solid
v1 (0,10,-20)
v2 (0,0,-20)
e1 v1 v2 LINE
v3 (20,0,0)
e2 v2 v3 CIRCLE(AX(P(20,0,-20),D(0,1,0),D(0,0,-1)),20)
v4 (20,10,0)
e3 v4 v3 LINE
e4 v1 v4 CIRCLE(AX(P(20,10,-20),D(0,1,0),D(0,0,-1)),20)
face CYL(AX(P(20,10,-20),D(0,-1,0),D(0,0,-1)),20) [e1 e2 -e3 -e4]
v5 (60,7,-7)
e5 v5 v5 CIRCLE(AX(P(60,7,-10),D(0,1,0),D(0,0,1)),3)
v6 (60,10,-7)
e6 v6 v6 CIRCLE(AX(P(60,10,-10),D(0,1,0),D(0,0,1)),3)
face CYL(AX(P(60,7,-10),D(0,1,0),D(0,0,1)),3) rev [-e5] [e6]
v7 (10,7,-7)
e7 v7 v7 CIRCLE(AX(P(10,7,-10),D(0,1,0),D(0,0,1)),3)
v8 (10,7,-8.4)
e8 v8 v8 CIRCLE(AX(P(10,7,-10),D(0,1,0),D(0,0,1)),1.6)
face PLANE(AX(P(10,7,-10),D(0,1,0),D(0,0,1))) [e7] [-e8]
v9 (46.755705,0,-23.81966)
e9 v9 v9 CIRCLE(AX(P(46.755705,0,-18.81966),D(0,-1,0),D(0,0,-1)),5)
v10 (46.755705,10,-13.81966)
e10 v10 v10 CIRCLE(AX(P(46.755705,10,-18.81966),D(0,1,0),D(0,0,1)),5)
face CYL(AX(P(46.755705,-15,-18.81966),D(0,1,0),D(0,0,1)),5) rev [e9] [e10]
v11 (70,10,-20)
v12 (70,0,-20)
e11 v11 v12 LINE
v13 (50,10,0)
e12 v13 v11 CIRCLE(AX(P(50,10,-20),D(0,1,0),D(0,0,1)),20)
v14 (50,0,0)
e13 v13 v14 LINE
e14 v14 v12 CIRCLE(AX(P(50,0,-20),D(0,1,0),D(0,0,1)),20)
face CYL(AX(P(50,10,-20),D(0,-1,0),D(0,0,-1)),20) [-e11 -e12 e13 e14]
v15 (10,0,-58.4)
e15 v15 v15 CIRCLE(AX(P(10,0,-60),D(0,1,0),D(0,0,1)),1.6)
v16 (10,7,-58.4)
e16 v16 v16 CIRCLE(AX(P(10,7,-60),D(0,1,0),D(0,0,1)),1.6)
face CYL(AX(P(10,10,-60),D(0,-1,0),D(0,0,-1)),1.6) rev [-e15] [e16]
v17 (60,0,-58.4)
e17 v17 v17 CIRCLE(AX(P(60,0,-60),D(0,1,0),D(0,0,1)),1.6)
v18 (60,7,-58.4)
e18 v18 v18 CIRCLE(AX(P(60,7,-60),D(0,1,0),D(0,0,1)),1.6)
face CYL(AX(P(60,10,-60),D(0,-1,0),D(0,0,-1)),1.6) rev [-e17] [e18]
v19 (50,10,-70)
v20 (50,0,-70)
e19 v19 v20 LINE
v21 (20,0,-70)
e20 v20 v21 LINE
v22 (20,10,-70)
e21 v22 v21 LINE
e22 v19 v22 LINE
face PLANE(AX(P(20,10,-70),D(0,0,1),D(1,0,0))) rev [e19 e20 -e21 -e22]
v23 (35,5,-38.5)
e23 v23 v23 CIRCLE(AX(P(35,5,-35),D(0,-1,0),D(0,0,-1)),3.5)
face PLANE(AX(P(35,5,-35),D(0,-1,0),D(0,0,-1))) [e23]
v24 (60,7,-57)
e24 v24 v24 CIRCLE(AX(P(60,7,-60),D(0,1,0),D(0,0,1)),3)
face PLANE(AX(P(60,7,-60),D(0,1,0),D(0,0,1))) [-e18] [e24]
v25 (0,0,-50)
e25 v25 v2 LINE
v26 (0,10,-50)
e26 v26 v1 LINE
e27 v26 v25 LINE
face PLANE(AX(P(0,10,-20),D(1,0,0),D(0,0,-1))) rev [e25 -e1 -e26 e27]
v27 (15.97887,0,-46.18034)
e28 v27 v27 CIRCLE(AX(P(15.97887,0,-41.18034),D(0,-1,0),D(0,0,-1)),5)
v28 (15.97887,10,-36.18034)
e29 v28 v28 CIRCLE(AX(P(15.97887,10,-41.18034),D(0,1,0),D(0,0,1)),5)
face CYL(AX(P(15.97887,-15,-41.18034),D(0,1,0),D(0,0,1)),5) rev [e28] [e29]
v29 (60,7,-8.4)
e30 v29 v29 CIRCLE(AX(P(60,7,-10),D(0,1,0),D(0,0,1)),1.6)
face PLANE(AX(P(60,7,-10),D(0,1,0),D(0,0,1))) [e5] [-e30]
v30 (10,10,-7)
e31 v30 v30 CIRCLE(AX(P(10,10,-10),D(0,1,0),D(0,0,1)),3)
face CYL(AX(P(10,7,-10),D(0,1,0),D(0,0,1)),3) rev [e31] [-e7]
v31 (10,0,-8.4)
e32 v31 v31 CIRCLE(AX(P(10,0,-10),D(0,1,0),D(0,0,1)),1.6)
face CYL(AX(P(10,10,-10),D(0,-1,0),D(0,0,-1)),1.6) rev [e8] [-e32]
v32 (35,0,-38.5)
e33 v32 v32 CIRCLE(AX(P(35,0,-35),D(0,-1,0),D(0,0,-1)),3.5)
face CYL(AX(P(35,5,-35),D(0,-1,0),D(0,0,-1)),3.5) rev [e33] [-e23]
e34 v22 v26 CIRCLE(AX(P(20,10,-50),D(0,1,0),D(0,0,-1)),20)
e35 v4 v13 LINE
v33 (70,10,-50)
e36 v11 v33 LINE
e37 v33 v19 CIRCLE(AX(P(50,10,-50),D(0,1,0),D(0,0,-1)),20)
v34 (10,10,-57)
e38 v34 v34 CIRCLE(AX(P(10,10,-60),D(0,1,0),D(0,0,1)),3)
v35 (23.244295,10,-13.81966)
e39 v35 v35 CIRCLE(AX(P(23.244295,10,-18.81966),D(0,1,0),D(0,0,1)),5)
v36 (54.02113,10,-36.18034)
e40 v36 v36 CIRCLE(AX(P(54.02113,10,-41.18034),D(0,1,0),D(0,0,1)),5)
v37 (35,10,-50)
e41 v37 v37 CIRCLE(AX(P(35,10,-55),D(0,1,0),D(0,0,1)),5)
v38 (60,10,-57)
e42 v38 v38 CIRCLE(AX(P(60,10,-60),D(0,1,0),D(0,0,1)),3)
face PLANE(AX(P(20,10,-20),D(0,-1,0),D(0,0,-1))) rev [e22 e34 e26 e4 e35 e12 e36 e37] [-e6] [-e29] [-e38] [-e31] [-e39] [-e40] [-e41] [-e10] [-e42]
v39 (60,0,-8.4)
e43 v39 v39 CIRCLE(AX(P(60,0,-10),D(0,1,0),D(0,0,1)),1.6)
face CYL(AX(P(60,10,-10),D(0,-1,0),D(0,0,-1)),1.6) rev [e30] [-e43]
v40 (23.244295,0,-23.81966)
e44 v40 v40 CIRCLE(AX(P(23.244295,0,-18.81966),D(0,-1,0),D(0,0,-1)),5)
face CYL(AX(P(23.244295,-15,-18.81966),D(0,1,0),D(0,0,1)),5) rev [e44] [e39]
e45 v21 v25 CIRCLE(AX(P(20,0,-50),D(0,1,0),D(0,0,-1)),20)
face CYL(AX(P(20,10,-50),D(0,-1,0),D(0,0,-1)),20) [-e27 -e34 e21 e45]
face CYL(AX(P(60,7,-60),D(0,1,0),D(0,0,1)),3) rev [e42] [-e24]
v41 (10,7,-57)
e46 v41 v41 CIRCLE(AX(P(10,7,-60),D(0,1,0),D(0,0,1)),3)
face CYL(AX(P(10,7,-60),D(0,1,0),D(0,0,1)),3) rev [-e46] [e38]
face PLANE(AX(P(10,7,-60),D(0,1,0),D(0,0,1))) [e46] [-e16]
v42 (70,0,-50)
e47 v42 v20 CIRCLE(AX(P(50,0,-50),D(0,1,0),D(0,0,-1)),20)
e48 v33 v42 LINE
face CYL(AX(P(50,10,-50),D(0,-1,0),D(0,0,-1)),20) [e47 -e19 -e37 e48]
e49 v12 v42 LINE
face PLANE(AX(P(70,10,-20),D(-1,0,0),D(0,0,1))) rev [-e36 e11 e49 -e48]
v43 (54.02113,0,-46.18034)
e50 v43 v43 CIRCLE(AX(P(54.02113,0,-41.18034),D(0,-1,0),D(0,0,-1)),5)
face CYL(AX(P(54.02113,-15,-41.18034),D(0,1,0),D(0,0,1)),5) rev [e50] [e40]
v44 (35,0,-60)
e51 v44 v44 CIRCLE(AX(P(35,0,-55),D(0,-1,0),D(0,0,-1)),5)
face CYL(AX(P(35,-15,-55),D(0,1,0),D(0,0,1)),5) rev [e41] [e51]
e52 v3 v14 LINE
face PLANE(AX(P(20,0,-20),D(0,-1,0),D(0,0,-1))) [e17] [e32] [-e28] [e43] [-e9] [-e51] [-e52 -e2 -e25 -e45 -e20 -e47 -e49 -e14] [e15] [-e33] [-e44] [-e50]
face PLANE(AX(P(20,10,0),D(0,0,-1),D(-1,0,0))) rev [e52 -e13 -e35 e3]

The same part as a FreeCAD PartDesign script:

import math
import FreeCAD as App
import Part
import Sketcher
from FreeCAD import Vector

doc = App.newDocument("Part")
body = doc.addObject("PartDesign::Body", "Body")

# Sketch on XZ plane
sketch1 = doc.addObject("Sketcher::SketchObject", "Sketch")
body.addObject(sketch1)
sketch1.AttachmentSupport = (doc.XZ_Plane, [""])
sketch1.MapMode = "FlatFace"
sketch1.addGeometry([
    Part.LineSegment(Vector(20, 0, 0), Vector(50, 0, 0)),  # 0
    Part.ArcOfCircle(Part.Circle(Vector(50, -20, 0), Vector(0, 0, 1), 20), math.radians(0), math.radians(90)),  # 1
    Part.LineSegment(Vector(70, -20, 0), Vector(70, -50, 0)),  # 2
    Part.ArcOfCircle(Part.Circle(Vector(50, -50, 0), Vector(0, 0, 1), 20), math.radians(-90), math.radians(0)),  # 3
    Part.LineSegment(Vector(50, -70, 0), Vector(20, -70, 0)),  # 4
    Part.ArcOfCircle(Part.Circle(Vector(20, -50, 0), Vector(0, 0, 1), 20), math.radians(180), math.radians(270)),  # 5
    Part.LineSegment(Vector(0, -50, 0), Vector(0, -20, 0)),  # 6
    Part.ArcOfCircle(Part.Circle(Vector(20, -20, 0), Vector(0, 0, 1), 20), math.radians(90), math.radians(180)),  # 7
    Part.Circle(Vector(10, -10, 0), Vector(0, 0, 1), 1.6),  # 8
    Part.Circle(Vector(60, -10, 0), Vector(0, 0, 1), 1.6),  # 9
    Part.Circle(Vector(10, -60, 0), Vector(0, 0, 1), 1.6),  # 10
    Part.Circle(Vector(60, -60, 0), Vector(0, 0, 1), 1.6),  # 11
], False)
sketch1.addConstraint([
    Sketcher.Constraint("Tangent", 0, 2, 1, 2),
    Sketcher.Constraint("Tangent", 1, 1, 2, 1),
    Sketcher.Constraint("Tangent", 2, 2, 3, 2),
    Sketcher.Constraint("Tangent", 3, 1, 4, 1),
    Sketcher.Constraint("Tangent", 4, 2, 5, 2),
    Sketcher.Constraint("Tangent", 5, 1, 6, 1),
    Sketcher.Constraint("Tangent", 6, 2, 7, 2),
    Sketcher.Constraint("Tangent", 7, 1, 0, 1),
    Sketcher.Constraint("Horizontal", 0),
    Sketcher.Constraint("Vertical", 2),
    Sketcher.Constraint("Horizontal", 4),
    Sketcher.Constraint("Vertical", 6),
    Sketcher.Constraint("Equal", 1, 3),
    Sketcher.Constraint("Equal", 3, 5),
    Sketcher.Constraint("Equal", 5, 7),
    Sketcher.Constraint("Equal", 8, 9),
    Sketcher.Constraint("Equal", 9, 10),
    Sketcher.Constraint("Equal", 10, 11),
    Sketcher.Constraint("PointOnObject", 0, 2, -1),
    Sketcher.Constraint("PointOnObject", 5, 1, -2),
    Sketcher.Constraint("Horizontal", 8, 3, 9, 3),
    Sketcher.Constraint("Horizontal", 10, 3, 11, 3),
    Sketcher.Constraint("Vertical", 8, 3, 10, 3),
    Sketcher.Constraint("Vertical", 9, 3, 11, 3),
    Sketcher.Constraint("Equal", 4, 2),
    Sketcher.Constraint("Radius", 1, 20.0),
    Sketcher.Constraint("Diameter", 8, 3.2),
    Sketcher.Constraint("DistanceX", 0, 1, 0, 2, 30.0),
    Sketcher.Constraint("DistanceX", -1, 1, 8, 3, 10.0),
    Sketcher.Constraint("DistanceY", 8, 3, -1, 1, 10.0),
    Sketcher.Constraint("DistanceX", -1, 1, 9, 3, 60.0),
    Sketcher.Constraint("DistanceY", 10, 3, -1, 1, 60.0),
])
pad1 = doc.addObject("PartDesign::Pad", "Pad")
body.addObject(pad1)
pad1.Profile = sketch1
pad1.Length = 10
pad1.Reversed = True

# Sketch on XZ plane
sketch2 = doc.addObject("Sketcher::SketchObject", "Sketch001")
body.addObject(sketch2)
sketch2.AttachmentSupport = (doc.XZ_Plane, [""])
sketch2.MapMode = "FlatFace"
sketch2.AttachmentOffset = App.Placement(Vector(0, 0, -10), App.Rotation())
sketch2.addGeometry([
    Part.Circle(Vector(35, -55, 0), Vector(0, 0, 1), 5),  # 0
    Part.Circle(Vector(54.02113, -41.18034, 0), Vector(0, 0, 1), 5),  # 1
    Part.Circle(Vector(46.755705, -18.81966, 0), Vector(0, 0, 1), 5),  # 2
    Part.Circle(Vector(23.244295, -18.81966, 0), Vector(0, 0, 1), 5),  # 3
    Part.Circle(Vector(15.97887, -41.18034, 0), Vector(0, 0, 1), 5),  # 4
], False)
sketch2.addConstraint([
    Sketcher.Constraint("Equal", 0, 1),
    Sketcher.Constraint("Equal", 1, 2),
    Sketcher.Constraint("Equal", 2, 3),
    Sketcher.Constraint("Equal", 3, 4),
    Sketcher.Constraint("Horizontal", 2, 3, 3, 3),
    Sketcher.Constraint("Horizontal", 1, 3, 4, 3),
    Sketcher.Constraint("Diameter", 0, 10.0),
    Sketcher.Constraint("DistanceX", -1, 1, 0, 3, 35.0),
    Sketcher.Constraint("DistanceY", 0, 3, -1, 1, 55.0),
    Sketcher.Constraint("DistanceX", -1, 1, 1, 3, 54.02113),
    Sketcher.Constraint("DistanceY", 1, 3, -1, 1, 41.18034),
    Sketcher.Constraint("DistanceY", 2, 3, -1, 1, 18.81966),
    Sketcher.Constraint("DistanceX", -1, 1, 4, 3, 15.97887),
    Sketcher.Constraint("DistanceX", 3, 3, 2, 3, 23.51141),
    Sketcher.Constraint("DistanceX", -1, 1, 2, 3, 46.755705),
])
pocket1 = doc.addObject("PartDesign::Pocket", "Pocket")
body.addObject(pocket1)
pocket1.Profile = sketch2
pocket1.Length = 25
pocket1.Reversed = True

# Sketch on XZ plane
sketch3 = doc.addObject("Sketcher::SketchObject", "Sketch002")
body.addObject(sketch3)
sketch3.AttachmentSupport = (doc.XZ_Plane, [""])
sketch3.MapMode = "FlatFace"
sketch3.AttachmentOffset = App.Placement(Vector(0, 0, -10), App.Rotation())
sketch3.addGeometry([
    Part.Circle(Vector(10, -60, 0), Vector(0, 0, 1), 3),
    Part.Circle(Vector(60, -60, 0), Vector(0, 0, 1), 3),
    Part.Circle(Vector(60, -10, 0), Vector(0, 0, 1), 3),
    Part.Circle(Vector(10, -10, 0), Vector(0, 0, 1), 3),
], False)
sketch3.addConstraint([
    Sketcher.Constraint("Equal", 0, 1),
    Sketcher.Constraint("Equal", 1, 2),
    Sketcher.Constraint("Equal", 2, 3),
    Sketcher.Constraint("Horizontal", 0, 3, 1, 3),
    Sketcher.Constraint("Horizontal", 2, 3, 3, 3),
    Sketcher.Constraint("Vertical", 1, 3, 2, 3),
    Sketcher.Constraint("Vertical", 0, 3, 3, 3),
    Sketcher.Constraint("Diameter", 0, 6.0),
    Sketcher.Constraint("DistanceX", -1, 1, 0, 3, 10.0),
    Sketcher.Constraint("DistanceY", 0, 3, -1, 1, 60.0),
    Sketcher.Constraint("DistanceX", -1, 1, 1, 3, 60.0),
    Sketcher.Constraint("DistanceY", 2, 3, -1, 1, 10.0),
])
pocket2 = doc.addObject("PartDesign::Pocket", "Pocket001")
body.addObject(pocket2)
pocket2.Profile = sketch3
pocket2.Length = 3
pocket2.Reversed = True

# Sketch on XZ plane
sketch4 = doc.addObject("Sketcher::SketchObject", "Sketch003")
body.addObject(sketch4)
sketch4.AttachmentSupport = (doc.XZ_Plane, [""])
sketch4.MapMode = "FlatFace"
sketch4.AttachmentOffset = App.Placement(Vector(0, 0, -5), App.Rotation())
sketch4.addGeometry([
    Part.Circle(Vector(15.97887, -41.18034, 0), Vector(0, 0, 1), 5),  # 0
    Part.Circle(Vector(35, -55, 0), Vector(0, 0, 1), 5),  # 1
    Part.Circle(Vector(54.02113, -41.18034, 0), Vector(0, 0, 1), 5),  # 2
    Part.Circle(Vector(46.755705, -18.81966, 0), Vector(0, 0, 1), 5),  # 3
    Part.Circle(Vector(23.244295, -18.81966, 0), Vector(0, 0, 1), 5),  # 4
    Part.Circle(Vector(35, -35, 0), Vector(0, 0, 1), 3.5),  # 5
], False)
sketch4.addConstraint([
    Sketcher.Constraint("Equal", 0, 1),
    Sketcher.Constraint("Equal", 1, 2),
    Sketcher.Constraint("Equal", 2, 3),
    Sketcher.Constraint("Equal", 3, 4),
    Sketcher.Constraint("Horizontal", 0, 3, 2, 3),
    Sketcher.Constraint("Horizontal", 3, 3, 4, 3),
    Sketcher.Constraint("Vertical", 1, 3, 5, 3),
    Sketcher.Constraint("Diameter", 0, 10.0),
    Sketcher.Constraint("Diameter", 5, 7.0),
    Sketcher.Constraint("DistanceX", -1, 1, 1, 3, 35.0),
    Sketcher.Constraint("DistanceY", 1, 3, -1, 1, 55.0),
    Sketcher.Constraint("DistanceY", 5, 3, -1, 1, 35.0),
    Sketcher.Constraint("DistanceX", -1, 1, 0, 3, 15.97887),
    Sketcher.Constraint("DistanceY", 0, 3, -1, 1, 41.18034),
    Sketcher.Constraint("DistanceX", -1, 1, 2, 3, 54.02113),
    Sketcher.Constraint("DistanceY", 3, 3, -1, 1, 18.81966),
    Sketcher.Constraint("DistanceX", 4, 3, 3, 3, 23.51141),
    Sketcher.Constraint("DistanceX", -1, 1, 3, 3, 46.755705),
])
pocket3 = doc.addObject("PartDesign::Pocket", "Pocket002")
body.addObject(pocket3)
pocket3.Profile = sketch4
pocket3.Length = 5
pocket3.Reversed = True

doc.recompute()
